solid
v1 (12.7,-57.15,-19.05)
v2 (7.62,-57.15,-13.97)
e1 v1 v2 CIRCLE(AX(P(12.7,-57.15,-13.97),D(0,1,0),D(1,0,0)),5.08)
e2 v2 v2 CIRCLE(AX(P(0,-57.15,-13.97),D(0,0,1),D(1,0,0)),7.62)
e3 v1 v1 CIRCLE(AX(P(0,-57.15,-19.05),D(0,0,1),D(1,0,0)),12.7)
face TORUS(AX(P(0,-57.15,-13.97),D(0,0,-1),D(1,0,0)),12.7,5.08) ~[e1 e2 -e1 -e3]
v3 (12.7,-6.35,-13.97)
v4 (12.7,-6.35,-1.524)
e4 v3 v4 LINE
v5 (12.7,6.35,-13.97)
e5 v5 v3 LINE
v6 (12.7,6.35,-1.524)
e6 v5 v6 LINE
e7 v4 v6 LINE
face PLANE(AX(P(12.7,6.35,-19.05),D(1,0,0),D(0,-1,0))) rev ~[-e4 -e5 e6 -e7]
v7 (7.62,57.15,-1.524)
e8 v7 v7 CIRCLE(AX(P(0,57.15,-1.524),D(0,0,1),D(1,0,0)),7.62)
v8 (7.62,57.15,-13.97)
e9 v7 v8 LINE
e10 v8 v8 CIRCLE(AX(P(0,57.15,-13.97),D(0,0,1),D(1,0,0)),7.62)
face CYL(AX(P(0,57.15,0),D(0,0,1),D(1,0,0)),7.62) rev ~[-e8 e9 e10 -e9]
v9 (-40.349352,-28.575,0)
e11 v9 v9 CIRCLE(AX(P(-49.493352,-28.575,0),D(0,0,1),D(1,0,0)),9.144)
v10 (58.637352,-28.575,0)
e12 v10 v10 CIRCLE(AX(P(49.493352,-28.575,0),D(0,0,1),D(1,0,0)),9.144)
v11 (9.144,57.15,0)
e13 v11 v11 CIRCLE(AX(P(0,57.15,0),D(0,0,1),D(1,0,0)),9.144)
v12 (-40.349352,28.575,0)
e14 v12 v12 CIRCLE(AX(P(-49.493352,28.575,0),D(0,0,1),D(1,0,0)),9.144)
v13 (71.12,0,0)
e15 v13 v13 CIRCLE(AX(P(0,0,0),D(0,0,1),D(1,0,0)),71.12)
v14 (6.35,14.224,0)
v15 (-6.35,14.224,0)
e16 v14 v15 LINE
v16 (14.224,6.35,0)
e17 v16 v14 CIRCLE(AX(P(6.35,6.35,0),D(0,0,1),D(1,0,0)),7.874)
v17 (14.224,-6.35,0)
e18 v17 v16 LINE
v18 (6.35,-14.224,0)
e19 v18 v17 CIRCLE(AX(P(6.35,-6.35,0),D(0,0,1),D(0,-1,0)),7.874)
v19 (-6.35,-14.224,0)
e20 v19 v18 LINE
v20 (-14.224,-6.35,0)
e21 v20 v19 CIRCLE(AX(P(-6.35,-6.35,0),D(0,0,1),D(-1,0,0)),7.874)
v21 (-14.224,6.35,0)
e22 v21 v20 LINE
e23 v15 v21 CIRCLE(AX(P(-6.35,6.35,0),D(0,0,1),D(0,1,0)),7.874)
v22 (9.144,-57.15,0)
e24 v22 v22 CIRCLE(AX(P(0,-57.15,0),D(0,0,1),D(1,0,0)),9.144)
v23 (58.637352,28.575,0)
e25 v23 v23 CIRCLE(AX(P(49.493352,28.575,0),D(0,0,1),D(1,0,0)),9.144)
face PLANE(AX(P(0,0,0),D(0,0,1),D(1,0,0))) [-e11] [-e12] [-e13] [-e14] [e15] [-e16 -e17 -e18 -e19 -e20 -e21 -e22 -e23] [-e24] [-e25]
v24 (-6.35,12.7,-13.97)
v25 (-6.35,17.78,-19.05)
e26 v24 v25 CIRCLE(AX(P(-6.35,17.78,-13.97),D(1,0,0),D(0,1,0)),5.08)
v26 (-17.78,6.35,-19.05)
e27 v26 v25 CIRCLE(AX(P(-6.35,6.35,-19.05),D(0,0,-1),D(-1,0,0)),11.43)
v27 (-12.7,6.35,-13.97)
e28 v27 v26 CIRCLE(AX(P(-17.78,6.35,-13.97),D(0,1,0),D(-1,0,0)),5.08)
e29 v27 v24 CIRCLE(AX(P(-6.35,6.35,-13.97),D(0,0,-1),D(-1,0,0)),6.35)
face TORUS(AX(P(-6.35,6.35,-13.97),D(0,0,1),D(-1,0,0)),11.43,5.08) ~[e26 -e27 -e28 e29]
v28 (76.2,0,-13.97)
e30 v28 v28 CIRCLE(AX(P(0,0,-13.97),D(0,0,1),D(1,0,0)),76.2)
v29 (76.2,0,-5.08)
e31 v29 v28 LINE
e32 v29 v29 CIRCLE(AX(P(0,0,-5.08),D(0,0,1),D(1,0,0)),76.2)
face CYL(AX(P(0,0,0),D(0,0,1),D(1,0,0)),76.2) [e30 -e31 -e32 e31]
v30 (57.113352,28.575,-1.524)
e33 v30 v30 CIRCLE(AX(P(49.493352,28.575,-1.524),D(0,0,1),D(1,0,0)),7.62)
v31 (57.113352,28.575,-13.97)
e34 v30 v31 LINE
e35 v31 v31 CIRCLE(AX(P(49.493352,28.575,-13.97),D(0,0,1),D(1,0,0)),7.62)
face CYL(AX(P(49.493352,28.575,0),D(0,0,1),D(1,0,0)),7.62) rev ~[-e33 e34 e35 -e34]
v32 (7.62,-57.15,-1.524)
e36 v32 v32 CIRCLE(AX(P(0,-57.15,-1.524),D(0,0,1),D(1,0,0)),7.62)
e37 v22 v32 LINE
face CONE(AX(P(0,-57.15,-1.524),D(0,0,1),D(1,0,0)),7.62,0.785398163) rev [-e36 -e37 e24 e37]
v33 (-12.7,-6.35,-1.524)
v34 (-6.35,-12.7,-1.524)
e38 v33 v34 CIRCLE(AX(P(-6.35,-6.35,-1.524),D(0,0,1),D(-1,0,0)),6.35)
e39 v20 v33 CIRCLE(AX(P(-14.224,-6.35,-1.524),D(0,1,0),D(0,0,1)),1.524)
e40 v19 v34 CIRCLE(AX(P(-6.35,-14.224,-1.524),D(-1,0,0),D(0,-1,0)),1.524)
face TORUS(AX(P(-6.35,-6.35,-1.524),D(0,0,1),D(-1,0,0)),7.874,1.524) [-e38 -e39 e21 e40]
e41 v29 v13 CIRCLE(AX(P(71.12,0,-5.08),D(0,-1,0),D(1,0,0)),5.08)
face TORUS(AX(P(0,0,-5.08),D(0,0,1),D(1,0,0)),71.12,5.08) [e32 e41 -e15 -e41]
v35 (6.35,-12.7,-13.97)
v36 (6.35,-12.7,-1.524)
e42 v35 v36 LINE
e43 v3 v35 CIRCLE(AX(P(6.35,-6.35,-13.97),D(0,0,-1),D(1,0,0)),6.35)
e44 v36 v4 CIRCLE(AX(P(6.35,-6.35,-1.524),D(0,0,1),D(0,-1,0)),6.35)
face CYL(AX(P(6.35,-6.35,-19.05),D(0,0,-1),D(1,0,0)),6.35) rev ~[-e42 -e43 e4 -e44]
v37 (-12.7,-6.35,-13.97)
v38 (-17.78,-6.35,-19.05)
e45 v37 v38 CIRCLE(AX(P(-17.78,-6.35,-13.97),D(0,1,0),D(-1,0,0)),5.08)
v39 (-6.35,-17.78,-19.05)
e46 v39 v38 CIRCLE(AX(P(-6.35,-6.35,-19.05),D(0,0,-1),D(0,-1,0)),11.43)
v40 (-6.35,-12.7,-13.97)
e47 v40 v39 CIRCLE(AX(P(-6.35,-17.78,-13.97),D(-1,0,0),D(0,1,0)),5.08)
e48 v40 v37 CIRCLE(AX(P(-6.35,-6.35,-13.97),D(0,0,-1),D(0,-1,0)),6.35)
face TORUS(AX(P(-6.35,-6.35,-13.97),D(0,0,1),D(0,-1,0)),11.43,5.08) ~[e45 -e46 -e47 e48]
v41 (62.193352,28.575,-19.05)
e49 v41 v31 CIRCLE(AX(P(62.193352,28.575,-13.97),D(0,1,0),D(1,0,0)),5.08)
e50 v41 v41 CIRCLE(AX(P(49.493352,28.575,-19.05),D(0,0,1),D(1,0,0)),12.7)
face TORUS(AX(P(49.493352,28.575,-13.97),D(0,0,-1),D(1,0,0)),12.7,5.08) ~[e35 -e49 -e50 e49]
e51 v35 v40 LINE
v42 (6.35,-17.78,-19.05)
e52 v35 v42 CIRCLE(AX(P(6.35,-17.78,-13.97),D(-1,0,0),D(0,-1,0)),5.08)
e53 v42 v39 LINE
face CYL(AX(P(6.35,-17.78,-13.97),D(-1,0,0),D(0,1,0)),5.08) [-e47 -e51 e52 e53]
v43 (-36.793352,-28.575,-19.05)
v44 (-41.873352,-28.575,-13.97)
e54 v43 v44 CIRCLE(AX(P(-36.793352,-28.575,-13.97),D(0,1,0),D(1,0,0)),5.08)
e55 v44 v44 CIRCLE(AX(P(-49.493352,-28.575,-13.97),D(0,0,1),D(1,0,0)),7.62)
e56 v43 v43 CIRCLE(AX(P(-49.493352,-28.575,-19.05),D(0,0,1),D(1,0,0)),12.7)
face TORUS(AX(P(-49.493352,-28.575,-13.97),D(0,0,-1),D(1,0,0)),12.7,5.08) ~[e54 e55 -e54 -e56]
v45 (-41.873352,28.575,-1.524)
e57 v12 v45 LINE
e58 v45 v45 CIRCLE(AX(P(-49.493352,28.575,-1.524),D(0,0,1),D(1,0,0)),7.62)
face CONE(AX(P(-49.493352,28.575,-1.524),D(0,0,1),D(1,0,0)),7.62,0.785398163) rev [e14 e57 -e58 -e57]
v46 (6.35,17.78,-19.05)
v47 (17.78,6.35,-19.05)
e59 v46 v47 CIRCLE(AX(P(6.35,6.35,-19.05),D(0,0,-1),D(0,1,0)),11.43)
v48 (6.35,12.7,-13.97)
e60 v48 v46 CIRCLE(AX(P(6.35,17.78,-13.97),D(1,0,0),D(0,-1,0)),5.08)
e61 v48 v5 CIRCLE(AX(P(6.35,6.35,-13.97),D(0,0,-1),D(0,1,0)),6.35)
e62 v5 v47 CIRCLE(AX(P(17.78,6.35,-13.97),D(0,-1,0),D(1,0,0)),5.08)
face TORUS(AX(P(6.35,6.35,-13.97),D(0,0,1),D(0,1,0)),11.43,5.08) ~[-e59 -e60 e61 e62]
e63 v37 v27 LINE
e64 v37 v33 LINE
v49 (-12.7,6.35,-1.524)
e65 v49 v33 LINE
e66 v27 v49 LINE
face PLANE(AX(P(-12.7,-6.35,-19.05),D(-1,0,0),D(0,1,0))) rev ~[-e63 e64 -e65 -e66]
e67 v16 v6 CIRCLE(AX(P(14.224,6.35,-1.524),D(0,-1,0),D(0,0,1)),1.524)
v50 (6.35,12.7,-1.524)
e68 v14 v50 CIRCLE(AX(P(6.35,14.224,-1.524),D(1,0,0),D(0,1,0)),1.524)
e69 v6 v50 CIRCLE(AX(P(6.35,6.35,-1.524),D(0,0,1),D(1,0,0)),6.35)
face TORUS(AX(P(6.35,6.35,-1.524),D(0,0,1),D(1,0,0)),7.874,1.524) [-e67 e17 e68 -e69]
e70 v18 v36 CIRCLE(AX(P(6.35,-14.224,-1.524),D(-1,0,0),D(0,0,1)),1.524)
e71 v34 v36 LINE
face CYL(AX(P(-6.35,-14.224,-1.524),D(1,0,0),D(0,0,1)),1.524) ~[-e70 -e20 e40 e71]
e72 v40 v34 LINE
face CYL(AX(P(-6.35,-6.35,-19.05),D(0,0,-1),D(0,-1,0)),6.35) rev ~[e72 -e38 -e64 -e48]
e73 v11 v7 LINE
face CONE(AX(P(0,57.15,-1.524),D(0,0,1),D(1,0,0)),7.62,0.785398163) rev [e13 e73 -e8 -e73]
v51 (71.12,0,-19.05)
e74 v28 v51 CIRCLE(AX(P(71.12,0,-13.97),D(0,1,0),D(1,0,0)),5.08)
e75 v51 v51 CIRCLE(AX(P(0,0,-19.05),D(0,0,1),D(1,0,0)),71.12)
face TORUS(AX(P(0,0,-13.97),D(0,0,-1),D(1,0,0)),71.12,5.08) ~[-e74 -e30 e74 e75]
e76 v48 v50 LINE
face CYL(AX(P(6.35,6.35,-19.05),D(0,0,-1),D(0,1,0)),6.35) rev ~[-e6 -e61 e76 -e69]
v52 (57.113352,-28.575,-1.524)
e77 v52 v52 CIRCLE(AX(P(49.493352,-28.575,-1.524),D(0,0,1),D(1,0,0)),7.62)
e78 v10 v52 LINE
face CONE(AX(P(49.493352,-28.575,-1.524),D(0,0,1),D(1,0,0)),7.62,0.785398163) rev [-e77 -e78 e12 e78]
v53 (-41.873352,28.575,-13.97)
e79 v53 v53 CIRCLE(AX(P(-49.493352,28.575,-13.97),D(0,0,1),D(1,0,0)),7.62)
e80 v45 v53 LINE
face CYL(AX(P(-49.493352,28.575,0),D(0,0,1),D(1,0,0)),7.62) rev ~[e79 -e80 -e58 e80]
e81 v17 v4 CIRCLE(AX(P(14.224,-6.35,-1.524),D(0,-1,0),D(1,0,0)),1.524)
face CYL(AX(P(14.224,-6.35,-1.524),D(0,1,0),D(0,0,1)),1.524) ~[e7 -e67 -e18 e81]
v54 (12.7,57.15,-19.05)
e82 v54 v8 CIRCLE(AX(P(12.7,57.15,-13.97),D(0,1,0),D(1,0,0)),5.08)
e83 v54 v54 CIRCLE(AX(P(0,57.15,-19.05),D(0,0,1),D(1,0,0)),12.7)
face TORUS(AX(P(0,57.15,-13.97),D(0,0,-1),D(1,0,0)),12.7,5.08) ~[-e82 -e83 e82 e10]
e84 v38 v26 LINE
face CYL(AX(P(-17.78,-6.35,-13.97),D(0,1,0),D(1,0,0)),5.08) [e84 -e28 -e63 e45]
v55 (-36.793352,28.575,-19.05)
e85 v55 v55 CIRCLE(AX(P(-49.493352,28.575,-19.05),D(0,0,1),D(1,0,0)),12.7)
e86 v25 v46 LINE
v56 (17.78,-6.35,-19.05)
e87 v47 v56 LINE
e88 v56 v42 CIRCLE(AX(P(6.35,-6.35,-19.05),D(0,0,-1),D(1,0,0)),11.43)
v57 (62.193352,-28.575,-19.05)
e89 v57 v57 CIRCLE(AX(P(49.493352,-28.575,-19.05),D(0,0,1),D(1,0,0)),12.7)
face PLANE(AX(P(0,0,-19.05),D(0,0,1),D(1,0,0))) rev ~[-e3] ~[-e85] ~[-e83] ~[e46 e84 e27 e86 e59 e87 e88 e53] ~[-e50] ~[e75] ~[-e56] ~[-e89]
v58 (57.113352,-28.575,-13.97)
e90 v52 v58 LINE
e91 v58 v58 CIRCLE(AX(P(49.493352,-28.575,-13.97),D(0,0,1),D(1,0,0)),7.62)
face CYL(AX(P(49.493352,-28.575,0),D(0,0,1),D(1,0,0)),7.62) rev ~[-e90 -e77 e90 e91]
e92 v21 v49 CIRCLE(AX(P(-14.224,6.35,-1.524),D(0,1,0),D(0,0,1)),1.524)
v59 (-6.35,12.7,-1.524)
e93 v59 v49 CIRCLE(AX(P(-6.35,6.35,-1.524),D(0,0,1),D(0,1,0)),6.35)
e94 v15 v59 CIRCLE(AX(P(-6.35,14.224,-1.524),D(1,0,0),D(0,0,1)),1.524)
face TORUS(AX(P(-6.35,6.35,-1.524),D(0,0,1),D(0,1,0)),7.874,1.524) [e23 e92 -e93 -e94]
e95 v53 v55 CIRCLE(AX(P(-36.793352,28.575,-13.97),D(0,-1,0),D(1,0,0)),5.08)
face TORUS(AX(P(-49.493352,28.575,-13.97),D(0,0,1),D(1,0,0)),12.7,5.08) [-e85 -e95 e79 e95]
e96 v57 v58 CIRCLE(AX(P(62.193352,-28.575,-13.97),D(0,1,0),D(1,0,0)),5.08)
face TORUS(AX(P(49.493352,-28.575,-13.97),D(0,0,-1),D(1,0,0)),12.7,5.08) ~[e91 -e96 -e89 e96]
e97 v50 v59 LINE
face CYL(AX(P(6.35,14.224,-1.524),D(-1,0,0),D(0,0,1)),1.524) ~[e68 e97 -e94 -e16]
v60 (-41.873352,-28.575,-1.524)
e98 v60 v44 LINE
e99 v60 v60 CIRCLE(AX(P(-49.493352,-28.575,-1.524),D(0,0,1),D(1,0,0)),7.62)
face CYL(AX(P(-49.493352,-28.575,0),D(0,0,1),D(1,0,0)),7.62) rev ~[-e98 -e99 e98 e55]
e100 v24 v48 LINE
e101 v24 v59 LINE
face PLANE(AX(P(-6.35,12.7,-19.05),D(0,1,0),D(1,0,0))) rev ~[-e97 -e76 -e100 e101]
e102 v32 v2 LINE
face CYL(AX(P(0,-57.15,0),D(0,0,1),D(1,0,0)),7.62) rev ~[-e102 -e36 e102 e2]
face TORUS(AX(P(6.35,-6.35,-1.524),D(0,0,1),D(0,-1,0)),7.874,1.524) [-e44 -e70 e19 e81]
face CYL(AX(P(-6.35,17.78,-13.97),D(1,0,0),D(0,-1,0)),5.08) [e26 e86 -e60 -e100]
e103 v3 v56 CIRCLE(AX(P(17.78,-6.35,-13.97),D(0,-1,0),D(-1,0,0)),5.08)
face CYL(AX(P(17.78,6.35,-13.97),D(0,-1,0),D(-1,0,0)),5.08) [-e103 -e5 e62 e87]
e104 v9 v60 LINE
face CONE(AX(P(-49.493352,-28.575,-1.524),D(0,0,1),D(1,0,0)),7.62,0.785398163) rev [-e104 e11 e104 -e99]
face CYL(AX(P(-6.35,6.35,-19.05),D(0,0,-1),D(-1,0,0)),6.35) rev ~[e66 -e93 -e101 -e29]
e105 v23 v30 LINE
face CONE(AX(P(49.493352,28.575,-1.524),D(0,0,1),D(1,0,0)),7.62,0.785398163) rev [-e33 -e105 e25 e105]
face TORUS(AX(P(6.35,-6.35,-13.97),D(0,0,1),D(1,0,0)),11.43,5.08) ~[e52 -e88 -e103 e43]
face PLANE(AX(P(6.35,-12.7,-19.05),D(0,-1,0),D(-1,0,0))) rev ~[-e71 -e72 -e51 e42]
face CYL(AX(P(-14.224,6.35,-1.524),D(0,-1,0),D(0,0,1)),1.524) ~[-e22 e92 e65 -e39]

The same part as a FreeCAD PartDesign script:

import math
import FreeCAD as App
import Part
import Sketcher
from FreeCAD import Vector
Q = App.Units.Quantity


def edges_at(feature, points):
    """Names of the edges that pass closest to the given points."""
    edges = feature.Shape.Edges
    near = lambda p: min(range(len(edges)), key=lambda i: edges[i].distToShape(Part.Vertex(*p))[0])
    return sorted({f"Edge{near(p) + 1}" for p in points})

doc = App.newDocument("Part")
body = doc.addObject("PartDesign::Body", "Body")

# Sketch on XY plane
sketch1 = body.newObject("Sketcher::SketchObject", "Sketch")
sketch1.AttachmentSupport = (doc.getObject("XY_Plane"), [""])
sketch1.MapMode = "FlatFace"
sketch1.addGeometry([
    Part.Circle(Vector(0, 0, 0), Vector(0, 0, 1), 76),  # 0
    Part.Circle(Vector(-49, -29, 0), Vector(0, 0, 1), 8),  # 1
    Part.Circle(Vector(0, -57, 0), Vector(0, 0, 1), 8),  # 2
    Part.Circle(Vector(49, -29, 0), Vector(0, 0, 1), 8),  # 3
    Part.Circle(Vector(-49, 29, 0), Vector(0, 0, 1), 8),  # 4
    Part.Circle(Vector(49, 29, 0), Vector(0, 0, 1), 8),  # 5
    Part.Circle(Vector(0, 57, 0), Vector(0, 0, 1), 8),  # 6
], False)
sketch1.addConstraint([
    Sketcher.Constraint("Coincident", 0, 3, -1, 1),
    Sketcher.Constraint("Equal", 1, 2),
    Sketcher.Constraint("Equal", 2, 3),
    Sketcher.Constraint("Equal", 3, 4),
    Sketcher.Constraint("Equal", 4, 5),
    Sketcher.Constraint("Equal", 5, 6),
    Sketcher.Constraint("Symmetric", 3, 3, 4, 3, -1, 1),
    Sketcher.Constraint("Symmetric", 1, 3, 5, 3, -1, 1),
    Sketcher.Constraint("Symmetric", 2, 3, 6, 3, -1, 1),
    Sketcher.Constraint("Symmetric", 1, 3, 3, 3, -2),
    Sketcher.Constraint("PointOnObject", 2, 3, -2),
    Sketcher.Constraint("Diameter", 0, Q("6 in")),
    Sketcher.Constraint("Diameter", 1, Q("0.6 in")),
    Sketcher.Constraint("DistanceY", 2, 3, -1, 1, Q("2.25 in")),
    Sketcher.Constraint("DistanceY", 1, 3, 4, 3, Q("2.25 in")),
    Sketcher.Constraint("DistanceX", 1, 3, -1, 1, 49.493352),
])
pad1 = body.newObject("PartDesign::Pad", "Pad")
pad1.Profile = sketch1
pad1.Length = Q("0.75 in")
pad1.Reversed = True

# Sketch on XY plane
sketch2 = body.newObject("Sketcher::SketchObject", "Sketch001")
sketch2.AttachmentSupport = (doc.getObject("XY_Plane"), [""])
sketch2.MapMode = "FlatFace"
sketch2.AttachmentOffset = App.Placement(Vector(0, 0, -0.75 * 25.4), App.Rotation())
sketch2.addGeometry([
    Part.LineSegment(Vector(-6, 13, 0), Vector(6, 13, 0)),  # 0
    Part.ArcOfCircle(Part.Circle(Vector(6, 6, 0), Vector(0, 0, 1), 6), math.radians(0), math.radians(90)),  # 1
    Part.LineSegment(Vector(13, 6, 0), Vector(13, -6, 0)),  # 2
    Part.ArcOfCircle(Part.Circle(Vector(6, -6, 0), Vector(0, 0, 1), 6), math.radians(-90), math.radians(0)),  # 3
    Part.LineSegment(Vector(6, -13, 0), Vector(-6, -13, 0)),  # 4
    Part.ArcOfCircle(Part.Circle(Vector(-6, -6, 0), Vector(0, 0, 1), 6), math.radians(180), math.radians(270)),  # 5
    Part.LineSegment(Vector(-13, -6, 0), Vector(-13, 6, 0)),  # 6
    Part.ArcOfCircle(Part.Circle(Vector(-6, 6, 0), Vector(0, 0, 1), 6), math.radians(90), math.radians(180)),  # 7
], False)
sketch2.addConstraint([
    Sketcher.Constraint("Tangent", 0, 2, 1, 2),
    Sketcher.Constraint("Tangent", 1, 1, 2, 1),
    Sketcher.Constraint("Tangent", 2, 2, 3, 2),
    Sketcher.Constraint("Tangent", 3, 1, 4, 1),
    Sketcher.Constraint("Tangent", 4, 2, 5, 2),
    Sketcher.Constraint("Tangent", 5, 1, 6, 1),
    Sketcher.Constraint("Tangent", 6, 2, 7, 2),
    Sketcher.Constraint("Tangent", 7, 1, 0, 1),
    Sketcher.Constraint("Horizontal", 0),
    Sketcher.Constraint("Vertical", 2),
    Sketcher.Constraint("Horizontal", 4),
    Sketcher.Constraint("Vertical", 6),
    Sketcher.Constraint("Equal", 1, 3),
    Sketcher.Constraint("Equal", 3, 5),
    Sketcher.Constraint("Equal", 5, 7),
    Sketcher.Constraint("Symmetric", 1, 3, 5, 3, -1, 1),
    Sketcher.Constraint("Equal", 4, 2),
    Sketcher.Constraint("Radius", 1, Q("0.25 in")),
    Sketcher.Constraint("DistanceX", 0, 1, 0, 2, Q("0.5 in")),
])
pocket1 = body.newObject("PartDesign::Pocket", "Pocket")
pocket1.Profile = sketch2
pocket1.Type = "ThroughAll"
pocket1.Reversed = True
doc.recompute()

chamfer = body.newObject("PartDesign::Chamfer", "Chamfer")
chamfer.Base = (pocket1, edges_at(pocket1, [
    (-57.113, 28.575, 0),
    (-7.62, 57.15, 0),
    (41.873, 28.575, 0),
    (41.873, -28.575, 0),
    (-7.62, -57.15, 0),
    (-57.113, -28.575, 0),
]))
chamfer.Size = Q("0.06 in")
doc.recompute()

fillet = body.newObject("PartDesign::Fillet", "Fillet")
fillet.Base = (chamfer, edges_at(chamfer, [
    (-12.7, 0, 0),
    (-10.84, 10.84, 0),
    (0, 12.7, 0),
    (-10.84, -10.84, 0),
    (0, -12.7, 0),
    (10.84, 10.84, 0),
    (12.7, 0, 0),
    (10.84, -10.84, 0),
]))
fillet.Radius = Q("0.06 in")
doc.recompute()

fillet2 = body.newObject("PartDesign::Fillet", "Fillet001")
fillet2.Base = (fillet, edges_at(fillet, [
    (-76.2, 0, -19.05),
    (-7.62, -57.15, -19.05),
    (-57.113, -28.575, -19.05),
    (41.873, -28.575, -19.05),
    (-57.113, 28.575, -19.05),
    (-10.84, 10.84, -19.05),
    (-12.7, 0, -19.05),
    (-10.84, -10.84, -19.05),
    (0, -12.7, -19.05),
    (10.84, -10.84, -19.05),
    (12.7, 0, -19.05),
    (10.84, 10.84, -19.05),
    (0, 12.7, -19.05),
    (-7.62, 57.15, -19.05),
    (41.873, 28.575, -19.05),
]))
fillet2.Radius = Q("0.2 in")
doc.recompute()

fillet3 = body.newObject("PartDesign::Fillet", "Fillet002")
fillet3.Base = (fillet2, edges_at(fillet2, [
    (-71.12, 0, -19.05),
    (-12.7, -57.15, -19.05),
    (-62.193, -28.575, -19.05),
    (36.793, -28.575, -19.05),
    (-62.193, 28.575, -19.05),
    (-14.432, 14.432, -19.05),
    (-17.78, 0, -19.05),
    (0, 17.78, -19.05),
    (-14.432, -14.432, -19.05),
    (14.432, 14.432, -19.05),
    (0, -17.78, -19.05),
    (17.78, 0, -19.05),
    (14.432, -14.432, -19.05),
    (-12.7, 57.15, -19.05),
    (36.793, 28.575, -19.05),
    (-76.2, 0, 0),
]))
fillet3.Radius = Q("0.2 in")

doc.recompute()
